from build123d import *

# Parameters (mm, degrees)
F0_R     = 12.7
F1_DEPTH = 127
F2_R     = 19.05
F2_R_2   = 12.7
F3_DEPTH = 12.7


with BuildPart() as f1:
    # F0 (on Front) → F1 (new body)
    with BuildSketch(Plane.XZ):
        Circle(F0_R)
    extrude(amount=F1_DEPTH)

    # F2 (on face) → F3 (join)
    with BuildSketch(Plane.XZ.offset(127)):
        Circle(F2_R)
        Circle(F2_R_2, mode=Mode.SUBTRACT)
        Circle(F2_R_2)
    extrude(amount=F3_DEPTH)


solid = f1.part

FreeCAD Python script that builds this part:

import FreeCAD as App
import Part
import Sketcher
from FreeCAD import Vector
Q = App.Units.Quantity

doc = App.newDocument("Part")
body = doc.addObject("PartDesign::Body", "Body")

# Sketch on XZ plane
sketch1 = doc.addObject("Sketcher::SketchObject", "Sketch")
body.addObject(sketch1)
sketch1.AttachmentSupport = (doc.XZ_Plane, [""])
sketch1.MapMode = "FlatFace"
sketch1.addGeometry(Part.Circle(Vector(0, 0, 0), Vector(0, 0, 1), 13), False)
sketch1.addConstraint(Sketcher.Constraint("Coincident", 0, 3, -1, 1))
sketch1.addConstraint(Sketcher.Constraint("Diameter", 0, Q("1 in")))
pad1 = doc.addObject("PartDesign::Pad", "Pad")
body.addObject(pad1)
pad1.Profile = sketch1
pad1.Length = Q("5 in")

# Sketch on XZ plane
sketch2 = doc.addObject("Sketcher::SketchObject", "Sketch001")
body.addObject(sketch2)
sketch2.AttachmentSupport = (doc.XZ_Plane, [""])
sketch2.MapMode = "FlatFace"
sketch2.AttachmentOffset = App.Placement(Vector(0, 0, 5 * 25.4), App.Rotation())
sketch2.addGeometry(Part.Circle(Vector(0, 0, 0), Vector(0, 0, 1), 19), False)
sketch2.addConstraint(Sketcher.Constraint("Coincident", 0, 3, -1, 1))
sketch2.addConstraint(Sketcher.Constraint("Diameter", 0, Q("1.5 in")))
pad2 = doc.addObject("PartDesign::Pad", "Pad001")
body.addObject(pad2)
pad2.Profile = sketch2
pad2.Length = Q("0.5 in")

doc.recompute()
